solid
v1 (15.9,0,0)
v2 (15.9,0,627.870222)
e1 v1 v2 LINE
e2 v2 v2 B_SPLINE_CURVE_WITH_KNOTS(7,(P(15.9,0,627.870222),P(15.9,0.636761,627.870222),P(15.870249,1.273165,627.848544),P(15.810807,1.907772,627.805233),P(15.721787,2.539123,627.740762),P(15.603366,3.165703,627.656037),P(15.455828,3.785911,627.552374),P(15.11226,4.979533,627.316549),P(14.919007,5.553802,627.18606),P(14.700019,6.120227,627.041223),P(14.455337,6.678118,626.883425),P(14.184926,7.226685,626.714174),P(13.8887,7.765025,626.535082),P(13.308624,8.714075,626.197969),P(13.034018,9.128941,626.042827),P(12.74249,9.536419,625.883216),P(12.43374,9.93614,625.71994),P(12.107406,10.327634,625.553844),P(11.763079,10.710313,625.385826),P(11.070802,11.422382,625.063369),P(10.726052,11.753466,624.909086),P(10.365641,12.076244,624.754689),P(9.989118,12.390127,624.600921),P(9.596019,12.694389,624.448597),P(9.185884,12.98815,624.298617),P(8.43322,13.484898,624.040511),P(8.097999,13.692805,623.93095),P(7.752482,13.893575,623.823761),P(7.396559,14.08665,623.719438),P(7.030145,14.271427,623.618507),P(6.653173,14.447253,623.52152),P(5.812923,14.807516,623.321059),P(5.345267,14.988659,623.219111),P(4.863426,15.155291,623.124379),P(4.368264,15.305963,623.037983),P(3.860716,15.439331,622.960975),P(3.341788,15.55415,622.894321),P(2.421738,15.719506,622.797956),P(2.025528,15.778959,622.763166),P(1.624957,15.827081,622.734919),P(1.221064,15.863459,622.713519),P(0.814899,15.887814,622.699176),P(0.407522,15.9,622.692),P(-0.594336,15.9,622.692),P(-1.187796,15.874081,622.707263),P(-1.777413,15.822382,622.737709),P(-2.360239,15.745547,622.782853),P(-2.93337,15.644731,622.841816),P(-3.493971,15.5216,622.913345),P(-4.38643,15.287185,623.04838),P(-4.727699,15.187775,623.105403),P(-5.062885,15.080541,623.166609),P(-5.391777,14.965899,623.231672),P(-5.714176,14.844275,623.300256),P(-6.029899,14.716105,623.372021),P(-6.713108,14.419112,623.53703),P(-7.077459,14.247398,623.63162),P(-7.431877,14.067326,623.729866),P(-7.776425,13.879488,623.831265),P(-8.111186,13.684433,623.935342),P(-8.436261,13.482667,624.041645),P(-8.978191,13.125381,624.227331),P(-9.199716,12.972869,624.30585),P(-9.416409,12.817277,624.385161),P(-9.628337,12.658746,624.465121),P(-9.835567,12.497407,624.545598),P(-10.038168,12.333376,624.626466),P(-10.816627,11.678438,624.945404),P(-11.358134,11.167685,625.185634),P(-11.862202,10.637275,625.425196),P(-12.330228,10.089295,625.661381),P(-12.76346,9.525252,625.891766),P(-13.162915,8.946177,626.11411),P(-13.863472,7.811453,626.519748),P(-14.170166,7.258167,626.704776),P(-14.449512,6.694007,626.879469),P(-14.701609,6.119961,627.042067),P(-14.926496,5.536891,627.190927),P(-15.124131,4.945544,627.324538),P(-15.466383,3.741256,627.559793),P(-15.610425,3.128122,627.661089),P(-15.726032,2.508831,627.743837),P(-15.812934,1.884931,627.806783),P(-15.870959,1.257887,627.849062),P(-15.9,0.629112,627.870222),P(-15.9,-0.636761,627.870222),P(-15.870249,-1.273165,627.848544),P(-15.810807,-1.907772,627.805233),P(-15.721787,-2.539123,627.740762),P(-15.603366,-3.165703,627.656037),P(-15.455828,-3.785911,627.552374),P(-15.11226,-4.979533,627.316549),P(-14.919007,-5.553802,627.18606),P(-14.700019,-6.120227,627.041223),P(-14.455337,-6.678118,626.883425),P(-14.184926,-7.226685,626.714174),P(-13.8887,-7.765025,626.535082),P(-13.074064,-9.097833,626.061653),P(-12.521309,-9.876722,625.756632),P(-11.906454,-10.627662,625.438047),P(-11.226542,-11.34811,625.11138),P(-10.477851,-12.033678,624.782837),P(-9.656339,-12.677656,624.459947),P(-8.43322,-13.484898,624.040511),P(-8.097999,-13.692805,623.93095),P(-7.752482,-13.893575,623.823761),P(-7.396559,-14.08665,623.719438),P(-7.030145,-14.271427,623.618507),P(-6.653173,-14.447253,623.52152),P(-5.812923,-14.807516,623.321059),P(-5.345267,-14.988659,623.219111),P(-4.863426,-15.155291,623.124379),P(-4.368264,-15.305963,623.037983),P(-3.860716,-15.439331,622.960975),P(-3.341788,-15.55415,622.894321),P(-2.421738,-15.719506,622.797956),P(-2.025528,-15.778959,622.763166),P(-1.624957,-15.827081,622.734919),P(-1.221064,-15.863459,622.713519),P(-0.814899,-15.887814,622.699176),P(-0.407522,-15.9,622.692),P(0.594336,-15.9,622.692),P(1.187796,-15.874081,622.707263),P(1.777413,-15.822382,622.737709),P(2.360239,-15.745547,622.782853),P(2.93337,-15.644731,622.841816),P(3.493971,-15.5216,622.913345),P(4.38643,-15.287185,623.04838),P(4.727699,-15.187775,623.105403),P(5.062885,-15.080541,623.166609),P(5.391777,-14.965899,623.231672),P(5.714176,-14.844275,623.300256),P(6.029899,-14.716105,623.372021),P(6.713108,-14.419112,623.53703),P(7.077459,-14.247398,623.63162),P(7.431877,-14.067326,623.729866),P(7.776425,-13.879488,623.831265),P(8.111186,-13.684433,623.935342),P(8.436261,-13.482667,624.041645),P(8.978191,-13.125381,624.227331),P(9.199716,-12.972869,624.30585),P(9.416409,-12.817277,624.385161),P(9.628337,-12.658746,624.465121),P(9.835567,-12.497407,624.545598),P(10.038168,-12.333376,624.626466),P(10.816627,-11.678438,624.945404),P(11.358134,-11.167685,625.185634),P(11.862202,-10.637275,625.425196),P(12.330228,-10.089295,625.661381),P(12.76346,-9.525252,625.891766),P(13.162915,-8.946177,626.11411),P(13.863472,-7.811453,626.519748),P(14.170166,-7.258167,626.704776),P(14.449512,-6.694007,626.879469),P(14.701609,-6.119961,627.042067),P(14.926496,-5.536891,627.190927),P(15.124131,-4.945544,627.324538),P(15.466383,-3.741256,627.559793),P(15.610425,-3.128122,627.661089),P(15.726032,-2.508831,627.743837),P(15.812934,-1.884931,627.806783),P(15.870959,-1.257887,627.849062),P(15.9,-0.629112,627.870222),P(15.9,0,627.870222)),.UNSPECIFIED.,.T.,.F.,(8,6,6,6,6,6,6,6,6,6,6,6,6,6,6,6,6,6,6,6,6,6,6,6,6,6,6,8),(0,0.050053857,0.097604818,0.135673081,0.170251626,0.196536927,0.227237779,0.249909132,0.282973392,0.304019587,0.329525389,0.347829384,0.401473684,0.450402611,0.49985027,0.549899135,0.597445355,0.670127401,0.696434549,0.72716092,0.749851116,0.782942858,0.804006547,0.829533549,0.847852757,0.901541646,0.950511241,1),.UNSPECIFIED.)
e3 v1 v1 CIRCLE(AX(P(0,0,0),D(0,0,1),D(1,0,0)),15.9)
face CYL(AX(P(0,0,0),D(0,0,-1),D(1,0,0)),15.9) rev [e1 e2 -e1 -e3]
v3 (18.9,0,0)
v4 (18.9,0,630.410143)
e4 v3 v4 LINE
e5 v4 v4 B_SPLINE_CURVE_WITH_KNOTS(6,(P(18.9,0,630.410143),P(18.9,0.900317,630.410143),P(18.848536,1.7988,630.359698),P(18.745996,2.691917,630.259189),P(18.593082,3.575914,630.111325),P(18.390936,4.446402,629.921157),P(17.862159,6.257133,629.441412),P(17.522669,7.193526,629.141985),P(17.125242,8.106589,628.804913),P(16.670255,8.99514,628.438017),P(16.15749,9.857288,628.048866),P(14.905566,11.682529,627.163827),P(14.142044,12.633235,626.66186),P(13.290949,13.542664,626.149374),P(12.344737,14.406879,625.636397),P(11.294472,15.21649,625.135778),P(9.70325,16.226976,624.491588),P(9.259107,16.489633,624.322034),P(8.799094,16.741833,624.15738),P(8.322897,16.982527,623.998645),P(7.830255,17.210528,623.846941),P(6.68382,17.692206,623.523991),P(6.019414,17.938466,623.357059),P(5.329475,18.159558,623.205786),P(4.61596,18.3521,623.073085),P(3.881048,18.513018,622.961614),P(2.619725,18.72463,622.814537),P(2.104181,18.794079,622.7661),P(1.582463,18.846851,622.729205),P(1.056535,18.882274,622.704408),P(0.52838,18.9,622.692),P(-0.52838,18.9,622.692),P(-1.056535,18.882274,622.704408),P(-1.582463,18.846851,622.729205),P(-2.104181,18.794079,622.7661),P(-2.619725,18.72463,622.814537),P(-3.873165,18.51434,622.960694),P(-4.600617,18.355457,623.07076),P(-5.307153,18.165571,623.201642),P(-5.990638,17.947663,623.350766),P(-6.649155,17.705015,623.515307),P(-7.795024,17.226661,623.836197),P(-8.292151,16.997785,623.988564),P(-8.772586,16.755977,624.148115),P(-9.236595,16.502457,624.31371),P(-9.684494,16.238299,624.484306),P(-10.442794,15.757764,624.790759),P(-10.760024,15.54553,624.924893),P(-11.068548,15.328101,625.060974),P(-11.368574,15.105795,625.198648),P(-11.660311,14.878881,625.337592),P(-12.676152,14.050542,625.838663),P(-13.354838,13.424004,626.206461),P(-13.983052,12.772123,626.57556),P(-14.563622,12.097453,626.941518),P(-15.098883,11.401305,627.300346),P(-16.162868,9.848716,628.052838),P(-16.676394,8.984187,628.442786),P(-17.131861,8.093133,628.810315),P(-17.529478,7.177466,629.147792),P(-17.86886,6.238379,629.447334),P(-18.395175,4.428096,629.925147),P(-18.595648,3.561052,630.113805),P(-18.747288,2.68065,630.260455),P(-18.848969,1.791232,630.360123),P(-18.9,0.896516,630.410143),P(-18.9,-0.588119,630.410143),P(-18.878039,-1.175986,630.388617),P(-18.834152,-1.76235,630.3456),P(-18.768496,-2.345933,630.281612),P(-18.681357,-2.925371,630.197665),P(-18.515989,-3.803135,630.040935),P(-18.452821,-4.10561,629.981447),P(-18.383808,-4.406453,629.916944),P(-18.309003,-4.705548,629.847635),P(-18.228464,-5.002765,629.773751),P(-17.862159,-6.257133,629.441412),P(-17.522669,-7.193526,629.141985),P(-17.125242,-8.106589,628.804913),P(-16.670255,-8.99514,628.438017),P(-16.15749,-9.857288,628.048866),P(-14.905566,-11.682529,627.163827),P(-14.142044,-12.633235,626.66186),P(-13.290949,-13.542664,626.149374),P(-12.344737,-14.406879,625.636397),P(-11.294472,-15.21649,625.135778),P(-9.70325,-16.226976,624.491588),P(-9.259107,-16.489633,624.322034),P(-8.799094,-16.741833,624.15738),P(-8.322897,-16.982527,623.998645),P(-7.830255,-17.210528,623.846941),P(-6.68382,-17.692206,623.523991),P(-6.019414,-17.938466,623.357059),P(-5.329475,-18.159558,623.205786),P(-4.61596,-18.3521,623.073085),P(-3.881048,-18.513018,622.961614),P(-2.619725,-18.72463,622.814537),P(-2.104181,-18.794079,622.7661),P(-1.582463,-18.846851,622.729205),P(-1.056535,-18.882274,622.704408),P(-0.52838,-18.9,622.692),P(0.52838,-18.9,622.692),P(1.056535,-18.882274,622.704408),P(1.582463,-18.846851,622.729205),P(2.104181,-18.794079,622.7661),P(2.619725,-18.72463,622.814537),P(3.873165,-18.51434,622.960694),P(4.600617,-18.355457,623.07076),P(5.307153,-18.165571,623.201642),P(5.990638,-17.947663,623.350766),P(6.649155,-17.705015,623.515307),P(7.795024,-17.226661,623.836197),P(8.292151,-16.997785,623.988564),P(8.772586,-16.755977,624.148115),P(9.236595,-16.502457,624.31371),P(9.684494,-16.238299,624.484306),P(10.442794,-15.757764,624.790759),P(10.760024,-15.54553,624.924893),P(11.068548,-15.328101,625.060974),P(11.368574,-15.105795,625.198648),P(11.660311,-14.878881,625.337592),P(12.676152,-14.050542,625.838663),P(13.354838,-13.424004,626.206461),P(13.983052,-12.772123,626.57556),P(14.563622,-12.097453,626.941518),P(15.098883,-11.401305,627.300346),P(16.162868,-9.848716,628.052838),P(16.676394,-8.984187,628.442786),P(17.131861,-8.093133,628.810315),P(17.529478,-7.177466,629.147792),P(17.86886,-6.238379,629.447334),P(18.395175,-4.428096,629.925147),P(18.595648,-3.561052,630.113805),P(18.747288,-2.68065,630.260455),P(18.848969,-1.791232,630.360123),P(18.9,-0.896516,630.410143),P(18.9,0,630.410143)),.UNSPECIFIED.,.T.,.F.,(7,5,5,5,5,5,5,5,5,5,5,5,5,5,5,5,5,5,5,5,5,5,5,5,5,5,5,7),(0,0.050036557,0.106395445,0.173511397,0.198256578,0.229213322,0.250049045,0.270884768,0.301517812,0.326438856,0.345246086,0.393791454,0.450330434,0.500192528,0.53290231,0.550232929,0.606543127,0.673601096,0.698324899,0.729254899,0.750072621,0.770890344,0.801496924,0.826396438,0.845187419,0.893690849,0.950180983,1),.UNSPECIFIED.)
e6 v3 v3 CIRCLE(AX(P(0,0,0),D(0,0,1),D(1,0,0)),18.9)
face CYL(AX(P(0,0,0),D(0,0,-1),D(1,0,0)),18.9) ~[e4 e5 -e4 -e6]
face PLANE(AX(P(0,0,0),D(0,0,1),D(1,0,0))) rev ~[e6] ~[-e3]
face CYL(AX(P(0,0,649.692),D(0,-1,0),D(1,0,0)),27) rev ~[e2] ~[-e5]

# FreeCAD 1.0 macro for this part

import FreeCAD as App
import Part
import Sketcher
Q = App.Units.Quantity

doc = App.newDocument("Part")
body = doc.addObject("PartDesign::Body", "Body")

sketch1 = body.newObject("Sketcher::SketchObject", "Sketch")
sketch1.AttachmentSupport = (doc.getObject("XY_Plane"), [""])
sketch1.MapMode = "FlatFace"
sketch1.addGeometry([
    Part.Circle(App.Vector(0, 0, 0), App.Vector(0, 0, 1), 19),
    Part.Circle(App.Vector(0, 0, 0), App.Vector(0, 0, 1), 16),
], False)
sketch1.addConstraint([
    Sketcher.Constraint("Coincident", 0, 3, -1, 1),
    Sketcher.Constraint("Coincident", 1, 3, -1, 1),
    Sketcher.Constraint("Diameter", 0, Q("37.8 mm")),
    Sketcher.Constraint("Diameter", 1, Q("31.8 mm")),
])
pad1 = body.newObject("PartDesign::Pad", "Pad")
pad1.Profile = sketch1
pad1.Length = 649.692

sketch2 = body.newObject("Sketcher::SketchObject", "Sketch001")
sketch2.AttachmentSupport = (doc.getObject("XZ_Plane"), [""])
sketch2.MapMode = "FlatFace"
sketch2.addGeometry(Part.Circle(App.Vector(0, 650, 0), App.Vector(0, 0, 1), 27), False)
sketch2.addConstraint([
    Sketcher.Constraint("PointOnObject", 0, 3, -2),
    Sketcher.Constraint("Diameter", 0, Q("54 mm")),
    Sketcher.Constraint("DistanceY", -1, 1, 0, 3, Q("649.692 mm")),
])
pocket1 = body.newObject("PartDesign::Pocket", "Pocket")
pocket1.Profile = sketch2
pocket1.Length = 100
pocket1.Midplane = True

doc.recompute()
